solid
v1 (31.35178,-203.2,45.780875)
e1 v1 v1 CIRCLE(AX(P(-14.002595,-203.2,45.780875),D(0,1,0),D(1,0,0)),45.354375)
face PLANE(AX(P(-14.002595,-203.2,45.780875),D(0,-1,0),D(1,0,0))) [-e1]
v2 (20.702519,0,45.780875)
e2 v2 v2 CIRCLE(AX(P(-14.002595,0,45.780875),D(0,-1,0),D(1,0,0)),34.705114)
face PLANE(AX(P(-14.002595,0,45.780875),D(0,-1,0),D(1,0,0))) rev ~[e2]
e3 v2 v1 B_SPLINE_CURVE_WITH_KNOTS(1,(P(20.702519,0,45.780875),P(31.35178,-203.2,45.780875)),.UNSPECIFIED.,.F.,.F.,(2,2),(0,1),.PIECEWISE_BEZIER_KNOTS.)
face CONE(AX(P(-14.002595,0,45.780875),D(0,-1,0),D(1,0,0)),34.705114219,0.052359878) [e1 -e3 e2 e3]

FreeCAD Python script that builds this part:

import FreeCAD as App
import Part
import Sketcher
from FreeCAD import Vector
Q = App.Units.Quantity

doc = App.newDocument("Part")
body = doc.addObject("PartDesign::Body", "Body")

# Sketch on XZ plane
sketch1 = body.newObject("Sketcher::SketchObject", "Sketch")
sketch1.AttachmentSupport = (doc.getObject("XZ_Plane"), [""])
sketch1.MapMode = "FlatFace"
sketch1.addGeometry(Part.Circle(Vector(-14.002595, 45.780875, 0), Vector(0, 0, 1), 34.705114), False)
sketch1.addConstraint([
    Sketcher.Constraint("Diameter", 0, Q("69.410228 mm")),
    Sketcher.Constraint("DistanceX", 0, 3, -1, 1, Q("14.002595 mm")),
    Sketcher.Constraint("DistanceY", -1, 1, 0, 3, Q("45.780875 mm")),
])
pad1 = body.newObject("PartDesign::Pad", "Pad")
pad1.Profile = sketch1
pad1.Length = Q("8 in")
pad1.TaperAngle = 3

doc.recompute()
